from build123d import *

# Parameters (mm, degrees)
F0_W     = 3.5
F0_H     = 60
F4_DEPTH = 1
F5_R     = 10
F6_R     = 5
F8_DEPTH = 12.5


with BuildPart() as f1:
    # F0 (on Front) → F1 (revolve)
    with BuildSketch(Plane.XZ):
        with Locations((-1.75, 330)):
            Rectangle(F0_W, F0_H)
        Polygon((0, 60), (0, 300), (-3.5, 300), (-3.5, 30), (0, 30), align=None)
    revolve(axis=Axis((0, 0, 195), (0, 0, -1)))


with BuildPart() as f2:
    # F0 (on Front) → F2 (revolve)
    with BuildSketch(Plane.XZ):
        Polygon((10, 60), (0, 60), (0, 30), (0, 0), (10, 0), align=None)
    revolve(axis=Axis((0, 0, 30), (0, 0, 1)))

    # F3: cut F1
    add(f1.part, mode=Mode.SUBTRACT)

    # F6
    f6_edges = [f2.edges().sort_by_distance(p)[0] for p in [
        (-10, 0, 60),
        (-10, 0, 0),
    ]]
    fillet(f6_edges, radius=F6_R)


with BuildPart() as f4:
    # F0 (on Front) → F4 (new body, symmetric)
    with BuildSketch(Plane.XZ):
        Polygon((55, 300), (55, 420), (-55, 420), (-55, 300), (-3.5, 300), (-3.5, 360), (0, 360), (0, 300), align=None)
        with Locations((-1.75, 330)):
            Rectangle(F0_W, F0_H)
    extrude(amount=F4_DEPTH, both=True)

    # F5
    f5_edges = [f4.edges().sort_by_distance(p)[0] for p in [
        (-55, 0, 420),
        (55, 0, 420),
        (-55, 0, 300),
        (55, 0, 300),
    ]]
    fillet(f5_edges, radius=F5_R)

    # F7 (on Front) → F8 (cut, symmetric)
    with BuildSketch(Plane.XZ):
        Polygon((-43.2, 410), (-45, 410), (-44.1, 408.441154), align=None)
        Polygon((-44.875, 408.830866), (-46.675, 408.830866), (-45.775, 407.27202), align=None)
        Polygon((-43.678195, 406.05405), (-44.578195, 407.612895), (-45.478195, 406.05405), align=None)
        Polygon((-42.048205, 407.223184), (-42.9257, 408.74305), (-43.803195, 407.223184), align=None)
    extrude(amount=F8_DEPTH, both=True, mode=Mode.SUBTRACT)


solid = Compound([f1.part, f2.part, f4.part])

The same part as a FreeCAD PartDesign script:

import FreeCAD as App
import Part
import Sketcher
from FreeCAD import Vector
Q = App.Units.Quantity


def edges_at(feature, points):
    """Names of the edges that pass closest to the given points."""
    edges = feature.Shape.Edges
    near = lambda p: min(range(len(edges)), key=lambda i: edges[i].distToShape(Part.Vertex(*p))[0])
    return sorted({f"Edge{near(p) + 1}" for p in points})

doc = App.newDocument("Part")
params = doc.addObject("Spreadsheet::Sheet", "Params")
for row, (alias, value) in enumerate([
    ("sketch1_height", "330 mm"),
    ("sketch1_width", "3.5 mm"),
    ("revolution_angle", "360 deg"),
    ("sketch2_width", "10 mm"),
    ("sketch2_height", "60 mm"),
    ("revolution2_angle", "360 deg"),
    ("fillet_radius", "5 mm"),
    ("sketch3_width", "110 mm"),
    ("sketch3_height", "120 mm"),
    ("pad1_length", "2 mm"),
    ("fillet2_radius", "10 mm"),
    ("sketch4_width", "1.8 mm"),
    ("pocket1_length", "25 mm"),
], start=1):
    params.set(f"A{row}", alias)
    params.set(f"B{row}", "=" + value)
    params.setAlias(f"B{row}", alias)

body = doc.addObject("PartDesign::Body", "Body")

# Sketch on XZ plane
sketch1 = body.newObject("Sketcher::SketchObject", "Sketch")
sketch1.AttachmentSupport = (doc.getObject("XZ_Plane"), [""])
sketch1.MapMode = "FlatFace"
sketch1.addGeometry([
    Part.LineSegment(Vector(-3.5, 360, 0), Vector(-3.5, 30, 0)),
    Part.LineSegment(Vector(-3.5, 30, 0), Vector(0, 30, 0)),
    Part.LineSegment(Vector(0, 30, 0), Vector(0, 360, 0)),
    Part.LineSegment(Vector(0, 360, 0), Vector(-3.5, 360, 0)),
], False)
sketch1.addConstraint([
    Sketcher.Constraint("Coincident", 0, 2, 1, 1),
    Sketcher.Constraint("Coincident", 1, 2, 2, 1),
    Sketcher.Constraint("Coincident", 2, 2, 3, 1),
    Sketcher.Constraint("Coincident", 3, 2, 0, 1),
    Sketcher.Constraint("Vertical", 0),
    Sketcher.Constraint("Horizontal", 1),
    Sketcher.Constraint("Vertical", 2),
    Sketcher.Constraint("Horizontal", 3),
    Sketcher.Constraint("PointOnObject", 1, 2, -2),
    Sketcher.Constraint("DistanceY", 0, 2, 0, 1, 330.0),
    Sketcher.Constraint("DistanceX", 1, 1, 1, 2, 3.5),
    Sketcher.Constraint("DistanceY", -1, 1, 0, 2, 30.0),
])
sketch1.setExpression("Constraints[9]", "Params.sketch1_height")
sketch1.setExpression("Constraints[10]", "Params.sketch1_width")
revolution = body.newObject("PartDesign::Revolution", "Revolution")
revolution.Profile = sketch1
revolution.ReferenceAxis = (sketch1, ["V_Axis"])
revolution.setExpression("Angle", "Params.revolution_angle")
body2 = doc.addObject("PartDesign::Body", "Body001")

# Sketch on XZ plane
sketch2 = body2.newObject("Sketcher::SketchObject", "Sketch001")
sketch2.AttachmentSupport = (doc.getObject("XZ_Plane001"), [""])
sketch2.MapMode = "FlatFace"
sketch2.addGeometry([
    Part.LineSegment(Vector(10, 60, 0), Vector(0, 60, 0)),
    Part.LineSegment(Vector(0, 60, 0), Vector(0, 0, 0)),
    Part.LineSegment(Vector(0, 0, 0), Vector(10, 0, 0)),
    Part.LineSegment(Vector(10, 0, 0), Vector(10, 60, 0)),
], False)
sketch2.addConstraint([
    Sketcher.Constraint("Coincident", 0, 2, 1, 1),
    Sketcher.Constraint("Coincident", 1, 2, 2, 1),
    Sketcher.Constraint("Coincident", 2, 2, 3, 1),
    Sketcher.Constraint("Coincident", 3, 2, 0, 1),
    Sketcher.Constraint("Horizontal", 0),
    Sketcher.Constraint("Vertical", 1),
    Sketcher.Constraint("Horizontal", 2),
    Sketcher.Constraint("Vertical", 3),
    Sketcher.Constraint("Coincident", 1, 2, -1, 1),
    Sketcher.Constraint("DistanceX", 0, 2, 0, 1, 10.0),
    Sketcher.Constraint("DistanceY", 1, 2, 1, 1, 60.0),
])
sketch2.setExpression("Constraints[9]", "Params.sketch2_width")
sketch2.setExpression("Constraints[10]", "Params.sketch2_height")
revolution2 = body2.newObject("PartDesign::Revolution", "Revolution001")
revolution2.Profile = sketch2
revolution2.ReferenceAxis = (sketch2, ["V_Axis"])
revolution2.setExpression("Angle", "Params.revolution2_angle")
doc.recompute()

body3 = doc.addObject("PartDesign::Body", "Body002")
body3.BaseFeature = body
boolean = body2.newObject("PartDesign::Boolean", "Boolean")
boolean.Type = "Cut"
boolean.addObjects([body3])
doc.recompute()

fillet = body2.newObject("PartDesign::Fillet", "Fillet")
fillet.Base = (boolean, edges_at(boolean, [(-10, 0, 60), (-10, 0, 0)]))
fillet.setExpression("Radius", "Params.fillet_radius")
body4 = doc.addObject("PartDesign::Body", "Body003")

# Sketch on XZ plane
sketch3 = body4.newObject("Sketcher::SketchObject", "Sketch002")
sketch3.AttachmentSupport = (doc.getObject("XZ_Plane003"), [""])
sketch3.MapMode = "FlatFace"
sketch3.addGeometry([
    Part.LineSegment(Vector(55, 300, 0), Vector(55, 420, 0)),
    Part.LineSegment(Vector(55, 420, 0), Vector(-55, 420, 0)),
    Part.LineSegment(Vector(-55, 420, 0), Vector(-55, 300, 0)),
    Part.LineSegment(Vector(-55, 300, 0), Vector(55, 300, 0)),
], False)
sketch3.addConstraint([
    Sketcher.Constraint("Coincident", 0, 2, 1, 1),
    Sketcher.Constraint("Coincident", 1, 2, 2, 1),
    Sketcher.Constraint("Coincident", 2, 2, 3, 1),
    Sketcher.Constraint("Coincident", 3, 2, 0, 1),
    Sketcher.Constraint("Vertical", 0),
    Sketcher.Constraint("Horizontal", 1),
    Sketcher.Constraint("Vertical", 2),
    Sketcher.Constraint("Horizontal", 3),
    Sketcher.Constraint("DistanceX", 1, 2, 1, 1, 110.0),
    Sketcher.Constraint("DistanceY", 0, 1, 0, 2, 120.0),
    Sketcher.Constraint("DistanceX", -1, 1, 0, 2, 55.0),
    Sketcher.Constraint("DistanceY", -1, 1, 0, 2, 420.0),
])
sketch3.setExpression("Constraints[8]", "Params.sketch3_width")
sketch3.setExpression("Constraints[9]", "Params.sketch3_height")
pad1 = body4.newObject("PartDesign::Pad", "Pad")
pad1.Profile = sketch3
pad1.setExpression("Length", "Params.pad1_length")
pad1.Midplane = True
doc.recompute()

fillet2 = body4.newObject("PartDesign::Fillet", "Fillet001")
fillet2.Base = (pad1, edges_at(pad1, [
    (-55, 0, 420),
    (55, 0, 420),
    (-55, 0, 300),
    (55, 0, 300),
]))
fillet2.setExpression("Radius", "Params.fillet2_radius")

# Sketch on XZ plane
sketch4 = body4.newObject("Sketcher::SketchObject", "Sketch003")
sketch4.AttachmentSupport = (doc.getObject("XZ_Plane003"), [""])
sketch4.MapMode = "FlatFace"
sketch4.addGeometry([
    Part.LineSegment(Vector(-43.2, 410, 0), Vector(-45, 410, 0)),  # 0
    Part.LineSegment(Vector(-45, 410, 0), Vector(-44.1, 408.441154, 0)),  # 1
    Part.LineSegment(Vector(-44.1, 408.441154, 0), Vector(-43.2, 410, 0)),  # 2
    Part.LineSegment(Vector(-44.875, 408.830866, 0), Vector(-46.675, 408.830866, 0)),  # 3
    Part.LineSegment(Vector(-46.675, 408.830866, 0), Vector(-45.775, 407.27202, 0)),  # 4
    Part.LineSegment(Vector(-45.775, 407.27202, 0), Vector(-44.875, 408.830866, 0)),  # 5
    Part.LineSegment(Vector(-43.678195, 406.05405, 0), Vector(-44.578195, 407.612895, 0)),  # 6
    Part.LineSegment(Vector(-44.578195, 407.612895, 0), Vector(-45.478195, 406.05405, 0)),  # 7
    Part.LineSegment(Vector(-45.478195, 406.05405, 0), Vector(-43.678195, 406.05405, 0)),  # 8
    Part.LineSegment(Vector(-42.048205, 407.223184, 0), Vector(-42.9257, 408.74305, 0)),  # 9
    Part.LineSegment(Vector(-42.9257, 408.74305, 0), Vector(-43.803195, 407.223184, 0)),  # 10
    Part.LineSegment(Vector(-43.803195, 407.223184, 0), Vector(-42.048205, 407.223184, 0)),  # 11
], False)
sketch4.addConstraint([
    Sketcher.Constraint("Coincident", 0, 2, 1, 1),
    Sketcher.Constraint("Coincident", 1, 2, 2, 1),
    Sketcher.Constraint("Coincident", 2, 2, 0, 1),
    Sketcher.Constraint("Coincident", 3, 2, 4, 1),
    Sketcher.Constraint("Coincident", 4, 2, 5, 1),
    Sketcher.Constraint("Coincident", 5, 2, 3, 1),
    Sketcher.Constraint("Coincident", 6, 2, 7, 1),
    Sketcher.Constraint("Coincident", 7, 2, 8, 1),
    Sketcher.Constraint("Coincident", 8, 2, 6, 1),
    Sketcher.Constraint("Coincident", 9, 2, 10, 1),
    Sketcher.Constraint("Coincident", 10, 2, 11, 1),
    Sketcher.Constraint("Coincident", 11, 2, 9, 1),
    Sketcher.Constraint("Horizontal", 0),
    Sketcher.Constraint("Horizontal", 3),
    Sketcher.Constraint("Horizontal", 8),
    Sketcher.Constraint("Horizontal", 11),
    Sketcher.Constraint("Parallel", 1, 4),
    Sketcher.Constraint("Parallel", 2, 5),
    Sketcher.Constraint("Parallel", 4, 6),
    Sketcher.Constraint("Parallel", 5, 7),
    Sketcher.Constraint("Parallel", 6, 9),
    Sketcher.Constraint("Parallel", 7, 10),
    Sketcher.Constraint("Equal", 0, 3),
    Sketcher.Constraint("Equal", 3, 8),
    Sketcher.Constraint("Equal", 1, 2),
    Sketcher.Constraint("Angle", 1, Q("-60.000004 deg")),
    Sketcher.Constraint("DistanceX", 0, 2, 0, 1, 1.8),
    Sketcher.Constraint("DistanceX", 0, 2, -1, 1, 45.0),
    Sketcher.Constraint("DistanceY", -1, 1, 0, 2, 410.0),
    Sketcher.Constraint("DistanceX", 3, 2, -1, 1, 46.675),
    Sketcher.Constraint("DistanceX", 6, 2, 10, 2, 0.775),
    Sketcher.Constraint("DistanceX", 11, 1, 11, 2, 1.75499),
    Sketcher.Constraint("DistanceX", 9, 2, -1, 1, 42.9257),
    Sketcher.Constraint("DistanceY", -1, 1, 4, 2, 407.27202),
    Sketcher.Constraint("DistanceY", -1, 1, 7, 2, 406.05405),
    Sketcher.Constraint("DistanceY", -1, 1, 9, 2, 408.74305),
])
sketch4.setExpression("Constraints[26]", "Params.sketch4_width")
pocket1 = body4.newObject("PartDesign::Pocket", "Pocket")
pocket1.Profile = sketch4
pocket1.setExpression("Length", "Params.pocket1_length")
pocket1.Midplane = True

doc.recompute()
